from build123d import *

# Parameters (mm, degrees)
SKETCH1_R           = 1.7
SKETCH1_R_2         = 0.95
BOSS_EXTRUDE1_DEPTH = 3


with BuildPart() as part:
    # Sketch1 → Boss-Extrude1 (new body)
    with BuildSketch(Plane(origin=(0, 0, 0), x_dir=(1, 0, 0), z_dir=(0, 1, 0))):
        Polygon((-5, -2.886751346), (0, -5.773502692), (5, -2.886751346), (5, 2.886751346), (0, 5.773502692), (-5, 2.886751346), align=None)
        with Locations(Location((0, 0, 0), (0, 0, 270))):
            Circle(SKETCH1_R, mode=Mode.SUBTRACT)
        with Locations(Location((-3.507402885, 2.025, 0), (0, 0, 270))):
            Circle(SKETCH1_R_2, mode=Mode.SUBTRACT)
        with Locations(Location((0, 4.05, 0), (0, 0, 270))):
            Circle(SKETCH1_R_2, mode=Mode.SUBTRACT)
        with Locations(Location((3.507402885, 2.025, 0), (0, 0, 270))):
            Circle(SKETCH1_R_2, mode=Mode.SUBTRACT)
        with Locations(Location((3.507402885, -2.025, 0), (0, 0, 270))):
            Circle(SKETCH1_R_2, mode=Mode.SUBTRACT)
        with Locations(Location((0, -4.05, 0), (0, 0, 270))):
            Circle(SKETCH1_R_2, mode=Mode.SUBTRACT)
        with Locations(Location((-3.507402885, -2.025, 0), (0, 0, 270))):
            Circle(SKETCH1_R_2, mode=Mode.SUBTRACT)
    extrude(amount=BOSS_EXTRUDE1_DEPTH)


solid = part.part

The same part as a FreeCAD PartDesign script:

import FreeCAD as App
import Part
import Sketcher
Q = App.Units.Quantity


def add_polygon(sketch, points):
    """Adds a closed chain of lines whose ends are joined by coincident constraints."""
    first, n = sketch.GeometryCount, len(points)
    for a, b in zip(points, points[1:] + points[:1]):
        sketch.addGeometry(Part.LineSegment(App.Vector(*a, 0), App.Vector(*b, 0)), False)
    for i in range(n):
        sketch.addConstraint(Sketcher.Constraint("Coincident", first + i, 2, first + (i + 1) % n, 1))

doc = App.newDocument("Part")
body = doc.addObject("PartDesign::Body", "Body")

sketch1 = body.newObject("Sketcher::SketchObject", "Sketch")
sketch1.AttachmentSupport = (doc.getObject("XZ_Plane"), [""])
sketch1.MapMode = "FlatFace"
add_polygon(sketch1, [(-5, 2.9), (0, 5.8), (5, 2.9), (5, -2.9), (0, -5.8), (-5, -2.9)])
sketch1.addGeometry(Part.Circle(App.Vector(-3.5, 2, 0), App.Vector(0, 0, 1), 0.9), False)
sketch1.addGeometry(Part.Circle(App.Vector(0, 4, 0), App.Vector(0, 0, 1), 0.9), False)
sketch1.addGeometry(Part.Circle(App.Vector(3.5, 2, 0), App.Vector(0, 0, 1), 0.9), False)
sketch1.addGeometry(Part.Circle(App.Vector(-3.5, -2, 0), App.Vector(0, 0, 1), 0.9), False)
sketch1.addGeometry(Part.Circle(App.Vector(0, 0, 0), App.Vector(0, 0, 1), 1.7), False)
sketch1.addGeometry(Part.Circle(App.Vector(3.5, -2, 0), App.Vector(0, 0, 1), 0.9), False)
sketch1.addGeometry(Part.Circle(App.Vector(0, -4, 0), App.Vector(0, 0, 1), 0.9), False)
sketch1.addConstraint(Sketcher.Constraint("Vertical", 2))
sketch1.addConstraint(Sketcher.Constraint("Vertical", 5))
sketch1.addConstraint(Sketcher.Constraint("Coincident", 10, 3, -1, 1))
sketch1.addConstraint(Sketcher.Constraint("Equal", 6, 7))
sketch1.addConstraint(Sketcher.Constraint("Equal", 7, 8))
sketch1.addConstraint(Sketcher.Constraint("Equal", 8, 9))
sketch1.addConstraint(Sketcher.Constraint("Equal", 9, 11))
sketch1.addConstraint(Sketcher.Constraint("Equal", 11, 12))
sketch1.addConstraint(Sketcher.Constraint("Symmetric", 8, 3, 9, 3, -1, 1))
sketch1.addConstraint(Sketcher.Constraint("Symmetric", 6, 3, 11, 3, -1, 1))
sketch1.addConstraint(Sketcher.Constraint("Symmetric", 7, 3, 12, 3, -1, 1))
sketch1.addConstraint(Sketcher.Constraint("Symmetric", 0, 2, 3, 2, -1, 1))
sketch1.addConstraint(Sketcher.Constraint("Symmetric", 1, 2, 4, 2, -1, 1))
sketch1.addConstraint(Sketcher.Constraint("Symmetric", 6, 3, 8, 3, -2))
sketch1.addConstraint(Sketcher.Constraint("PointOnObject", 7, 3, -2))
sketch1.addConstraint(Sketcher.Constraint("PointOnObject", 0, 2, -2))
sketch1.addConstraint(Sketcher.Constraint("Parallel", 0, 3))
sketch1.addConstraint(Sketcher.Constraint("Horizontal", 2, 2, 4, 2))
sketch1.addConstraint(Sketcher.Constraint("Diameter", 6, 1.9))
sketch1.addConstraint(Sketcher.Constraint("Diameter", 10, 3.4))
sketch1.addConstraint(Sketcher.Constraint("Angle", 0, Q("30 deg")))
sketch1.addConstraint(Sketcher.Constraint("DistanceX", -1, 1, 1, 2, 5.0))
sketch1.addConstraint(Sketcher.Constraint("DistanceY", -1, 1, 7, 3, 4.05))
sketch1.addConstraint(Sketcher.Constraint("DistanceY", 9, 3, 6, 3, 4.05))
sketch1.addConstraint(Sketcher.Constraint("DistanceY", 2, 2, 2, 1, 5.773503))
sketch1.addConstraint(Sketcher.Constraint("DistanceX", 6, 3, -1, 1, 3.507403))
pad1 = body.newObject("PartDesign::Pad", "Pad")
pad1.Profile = sketch1
pad1.Length = 3
pad1.Reversed = True

doc.recompute()
